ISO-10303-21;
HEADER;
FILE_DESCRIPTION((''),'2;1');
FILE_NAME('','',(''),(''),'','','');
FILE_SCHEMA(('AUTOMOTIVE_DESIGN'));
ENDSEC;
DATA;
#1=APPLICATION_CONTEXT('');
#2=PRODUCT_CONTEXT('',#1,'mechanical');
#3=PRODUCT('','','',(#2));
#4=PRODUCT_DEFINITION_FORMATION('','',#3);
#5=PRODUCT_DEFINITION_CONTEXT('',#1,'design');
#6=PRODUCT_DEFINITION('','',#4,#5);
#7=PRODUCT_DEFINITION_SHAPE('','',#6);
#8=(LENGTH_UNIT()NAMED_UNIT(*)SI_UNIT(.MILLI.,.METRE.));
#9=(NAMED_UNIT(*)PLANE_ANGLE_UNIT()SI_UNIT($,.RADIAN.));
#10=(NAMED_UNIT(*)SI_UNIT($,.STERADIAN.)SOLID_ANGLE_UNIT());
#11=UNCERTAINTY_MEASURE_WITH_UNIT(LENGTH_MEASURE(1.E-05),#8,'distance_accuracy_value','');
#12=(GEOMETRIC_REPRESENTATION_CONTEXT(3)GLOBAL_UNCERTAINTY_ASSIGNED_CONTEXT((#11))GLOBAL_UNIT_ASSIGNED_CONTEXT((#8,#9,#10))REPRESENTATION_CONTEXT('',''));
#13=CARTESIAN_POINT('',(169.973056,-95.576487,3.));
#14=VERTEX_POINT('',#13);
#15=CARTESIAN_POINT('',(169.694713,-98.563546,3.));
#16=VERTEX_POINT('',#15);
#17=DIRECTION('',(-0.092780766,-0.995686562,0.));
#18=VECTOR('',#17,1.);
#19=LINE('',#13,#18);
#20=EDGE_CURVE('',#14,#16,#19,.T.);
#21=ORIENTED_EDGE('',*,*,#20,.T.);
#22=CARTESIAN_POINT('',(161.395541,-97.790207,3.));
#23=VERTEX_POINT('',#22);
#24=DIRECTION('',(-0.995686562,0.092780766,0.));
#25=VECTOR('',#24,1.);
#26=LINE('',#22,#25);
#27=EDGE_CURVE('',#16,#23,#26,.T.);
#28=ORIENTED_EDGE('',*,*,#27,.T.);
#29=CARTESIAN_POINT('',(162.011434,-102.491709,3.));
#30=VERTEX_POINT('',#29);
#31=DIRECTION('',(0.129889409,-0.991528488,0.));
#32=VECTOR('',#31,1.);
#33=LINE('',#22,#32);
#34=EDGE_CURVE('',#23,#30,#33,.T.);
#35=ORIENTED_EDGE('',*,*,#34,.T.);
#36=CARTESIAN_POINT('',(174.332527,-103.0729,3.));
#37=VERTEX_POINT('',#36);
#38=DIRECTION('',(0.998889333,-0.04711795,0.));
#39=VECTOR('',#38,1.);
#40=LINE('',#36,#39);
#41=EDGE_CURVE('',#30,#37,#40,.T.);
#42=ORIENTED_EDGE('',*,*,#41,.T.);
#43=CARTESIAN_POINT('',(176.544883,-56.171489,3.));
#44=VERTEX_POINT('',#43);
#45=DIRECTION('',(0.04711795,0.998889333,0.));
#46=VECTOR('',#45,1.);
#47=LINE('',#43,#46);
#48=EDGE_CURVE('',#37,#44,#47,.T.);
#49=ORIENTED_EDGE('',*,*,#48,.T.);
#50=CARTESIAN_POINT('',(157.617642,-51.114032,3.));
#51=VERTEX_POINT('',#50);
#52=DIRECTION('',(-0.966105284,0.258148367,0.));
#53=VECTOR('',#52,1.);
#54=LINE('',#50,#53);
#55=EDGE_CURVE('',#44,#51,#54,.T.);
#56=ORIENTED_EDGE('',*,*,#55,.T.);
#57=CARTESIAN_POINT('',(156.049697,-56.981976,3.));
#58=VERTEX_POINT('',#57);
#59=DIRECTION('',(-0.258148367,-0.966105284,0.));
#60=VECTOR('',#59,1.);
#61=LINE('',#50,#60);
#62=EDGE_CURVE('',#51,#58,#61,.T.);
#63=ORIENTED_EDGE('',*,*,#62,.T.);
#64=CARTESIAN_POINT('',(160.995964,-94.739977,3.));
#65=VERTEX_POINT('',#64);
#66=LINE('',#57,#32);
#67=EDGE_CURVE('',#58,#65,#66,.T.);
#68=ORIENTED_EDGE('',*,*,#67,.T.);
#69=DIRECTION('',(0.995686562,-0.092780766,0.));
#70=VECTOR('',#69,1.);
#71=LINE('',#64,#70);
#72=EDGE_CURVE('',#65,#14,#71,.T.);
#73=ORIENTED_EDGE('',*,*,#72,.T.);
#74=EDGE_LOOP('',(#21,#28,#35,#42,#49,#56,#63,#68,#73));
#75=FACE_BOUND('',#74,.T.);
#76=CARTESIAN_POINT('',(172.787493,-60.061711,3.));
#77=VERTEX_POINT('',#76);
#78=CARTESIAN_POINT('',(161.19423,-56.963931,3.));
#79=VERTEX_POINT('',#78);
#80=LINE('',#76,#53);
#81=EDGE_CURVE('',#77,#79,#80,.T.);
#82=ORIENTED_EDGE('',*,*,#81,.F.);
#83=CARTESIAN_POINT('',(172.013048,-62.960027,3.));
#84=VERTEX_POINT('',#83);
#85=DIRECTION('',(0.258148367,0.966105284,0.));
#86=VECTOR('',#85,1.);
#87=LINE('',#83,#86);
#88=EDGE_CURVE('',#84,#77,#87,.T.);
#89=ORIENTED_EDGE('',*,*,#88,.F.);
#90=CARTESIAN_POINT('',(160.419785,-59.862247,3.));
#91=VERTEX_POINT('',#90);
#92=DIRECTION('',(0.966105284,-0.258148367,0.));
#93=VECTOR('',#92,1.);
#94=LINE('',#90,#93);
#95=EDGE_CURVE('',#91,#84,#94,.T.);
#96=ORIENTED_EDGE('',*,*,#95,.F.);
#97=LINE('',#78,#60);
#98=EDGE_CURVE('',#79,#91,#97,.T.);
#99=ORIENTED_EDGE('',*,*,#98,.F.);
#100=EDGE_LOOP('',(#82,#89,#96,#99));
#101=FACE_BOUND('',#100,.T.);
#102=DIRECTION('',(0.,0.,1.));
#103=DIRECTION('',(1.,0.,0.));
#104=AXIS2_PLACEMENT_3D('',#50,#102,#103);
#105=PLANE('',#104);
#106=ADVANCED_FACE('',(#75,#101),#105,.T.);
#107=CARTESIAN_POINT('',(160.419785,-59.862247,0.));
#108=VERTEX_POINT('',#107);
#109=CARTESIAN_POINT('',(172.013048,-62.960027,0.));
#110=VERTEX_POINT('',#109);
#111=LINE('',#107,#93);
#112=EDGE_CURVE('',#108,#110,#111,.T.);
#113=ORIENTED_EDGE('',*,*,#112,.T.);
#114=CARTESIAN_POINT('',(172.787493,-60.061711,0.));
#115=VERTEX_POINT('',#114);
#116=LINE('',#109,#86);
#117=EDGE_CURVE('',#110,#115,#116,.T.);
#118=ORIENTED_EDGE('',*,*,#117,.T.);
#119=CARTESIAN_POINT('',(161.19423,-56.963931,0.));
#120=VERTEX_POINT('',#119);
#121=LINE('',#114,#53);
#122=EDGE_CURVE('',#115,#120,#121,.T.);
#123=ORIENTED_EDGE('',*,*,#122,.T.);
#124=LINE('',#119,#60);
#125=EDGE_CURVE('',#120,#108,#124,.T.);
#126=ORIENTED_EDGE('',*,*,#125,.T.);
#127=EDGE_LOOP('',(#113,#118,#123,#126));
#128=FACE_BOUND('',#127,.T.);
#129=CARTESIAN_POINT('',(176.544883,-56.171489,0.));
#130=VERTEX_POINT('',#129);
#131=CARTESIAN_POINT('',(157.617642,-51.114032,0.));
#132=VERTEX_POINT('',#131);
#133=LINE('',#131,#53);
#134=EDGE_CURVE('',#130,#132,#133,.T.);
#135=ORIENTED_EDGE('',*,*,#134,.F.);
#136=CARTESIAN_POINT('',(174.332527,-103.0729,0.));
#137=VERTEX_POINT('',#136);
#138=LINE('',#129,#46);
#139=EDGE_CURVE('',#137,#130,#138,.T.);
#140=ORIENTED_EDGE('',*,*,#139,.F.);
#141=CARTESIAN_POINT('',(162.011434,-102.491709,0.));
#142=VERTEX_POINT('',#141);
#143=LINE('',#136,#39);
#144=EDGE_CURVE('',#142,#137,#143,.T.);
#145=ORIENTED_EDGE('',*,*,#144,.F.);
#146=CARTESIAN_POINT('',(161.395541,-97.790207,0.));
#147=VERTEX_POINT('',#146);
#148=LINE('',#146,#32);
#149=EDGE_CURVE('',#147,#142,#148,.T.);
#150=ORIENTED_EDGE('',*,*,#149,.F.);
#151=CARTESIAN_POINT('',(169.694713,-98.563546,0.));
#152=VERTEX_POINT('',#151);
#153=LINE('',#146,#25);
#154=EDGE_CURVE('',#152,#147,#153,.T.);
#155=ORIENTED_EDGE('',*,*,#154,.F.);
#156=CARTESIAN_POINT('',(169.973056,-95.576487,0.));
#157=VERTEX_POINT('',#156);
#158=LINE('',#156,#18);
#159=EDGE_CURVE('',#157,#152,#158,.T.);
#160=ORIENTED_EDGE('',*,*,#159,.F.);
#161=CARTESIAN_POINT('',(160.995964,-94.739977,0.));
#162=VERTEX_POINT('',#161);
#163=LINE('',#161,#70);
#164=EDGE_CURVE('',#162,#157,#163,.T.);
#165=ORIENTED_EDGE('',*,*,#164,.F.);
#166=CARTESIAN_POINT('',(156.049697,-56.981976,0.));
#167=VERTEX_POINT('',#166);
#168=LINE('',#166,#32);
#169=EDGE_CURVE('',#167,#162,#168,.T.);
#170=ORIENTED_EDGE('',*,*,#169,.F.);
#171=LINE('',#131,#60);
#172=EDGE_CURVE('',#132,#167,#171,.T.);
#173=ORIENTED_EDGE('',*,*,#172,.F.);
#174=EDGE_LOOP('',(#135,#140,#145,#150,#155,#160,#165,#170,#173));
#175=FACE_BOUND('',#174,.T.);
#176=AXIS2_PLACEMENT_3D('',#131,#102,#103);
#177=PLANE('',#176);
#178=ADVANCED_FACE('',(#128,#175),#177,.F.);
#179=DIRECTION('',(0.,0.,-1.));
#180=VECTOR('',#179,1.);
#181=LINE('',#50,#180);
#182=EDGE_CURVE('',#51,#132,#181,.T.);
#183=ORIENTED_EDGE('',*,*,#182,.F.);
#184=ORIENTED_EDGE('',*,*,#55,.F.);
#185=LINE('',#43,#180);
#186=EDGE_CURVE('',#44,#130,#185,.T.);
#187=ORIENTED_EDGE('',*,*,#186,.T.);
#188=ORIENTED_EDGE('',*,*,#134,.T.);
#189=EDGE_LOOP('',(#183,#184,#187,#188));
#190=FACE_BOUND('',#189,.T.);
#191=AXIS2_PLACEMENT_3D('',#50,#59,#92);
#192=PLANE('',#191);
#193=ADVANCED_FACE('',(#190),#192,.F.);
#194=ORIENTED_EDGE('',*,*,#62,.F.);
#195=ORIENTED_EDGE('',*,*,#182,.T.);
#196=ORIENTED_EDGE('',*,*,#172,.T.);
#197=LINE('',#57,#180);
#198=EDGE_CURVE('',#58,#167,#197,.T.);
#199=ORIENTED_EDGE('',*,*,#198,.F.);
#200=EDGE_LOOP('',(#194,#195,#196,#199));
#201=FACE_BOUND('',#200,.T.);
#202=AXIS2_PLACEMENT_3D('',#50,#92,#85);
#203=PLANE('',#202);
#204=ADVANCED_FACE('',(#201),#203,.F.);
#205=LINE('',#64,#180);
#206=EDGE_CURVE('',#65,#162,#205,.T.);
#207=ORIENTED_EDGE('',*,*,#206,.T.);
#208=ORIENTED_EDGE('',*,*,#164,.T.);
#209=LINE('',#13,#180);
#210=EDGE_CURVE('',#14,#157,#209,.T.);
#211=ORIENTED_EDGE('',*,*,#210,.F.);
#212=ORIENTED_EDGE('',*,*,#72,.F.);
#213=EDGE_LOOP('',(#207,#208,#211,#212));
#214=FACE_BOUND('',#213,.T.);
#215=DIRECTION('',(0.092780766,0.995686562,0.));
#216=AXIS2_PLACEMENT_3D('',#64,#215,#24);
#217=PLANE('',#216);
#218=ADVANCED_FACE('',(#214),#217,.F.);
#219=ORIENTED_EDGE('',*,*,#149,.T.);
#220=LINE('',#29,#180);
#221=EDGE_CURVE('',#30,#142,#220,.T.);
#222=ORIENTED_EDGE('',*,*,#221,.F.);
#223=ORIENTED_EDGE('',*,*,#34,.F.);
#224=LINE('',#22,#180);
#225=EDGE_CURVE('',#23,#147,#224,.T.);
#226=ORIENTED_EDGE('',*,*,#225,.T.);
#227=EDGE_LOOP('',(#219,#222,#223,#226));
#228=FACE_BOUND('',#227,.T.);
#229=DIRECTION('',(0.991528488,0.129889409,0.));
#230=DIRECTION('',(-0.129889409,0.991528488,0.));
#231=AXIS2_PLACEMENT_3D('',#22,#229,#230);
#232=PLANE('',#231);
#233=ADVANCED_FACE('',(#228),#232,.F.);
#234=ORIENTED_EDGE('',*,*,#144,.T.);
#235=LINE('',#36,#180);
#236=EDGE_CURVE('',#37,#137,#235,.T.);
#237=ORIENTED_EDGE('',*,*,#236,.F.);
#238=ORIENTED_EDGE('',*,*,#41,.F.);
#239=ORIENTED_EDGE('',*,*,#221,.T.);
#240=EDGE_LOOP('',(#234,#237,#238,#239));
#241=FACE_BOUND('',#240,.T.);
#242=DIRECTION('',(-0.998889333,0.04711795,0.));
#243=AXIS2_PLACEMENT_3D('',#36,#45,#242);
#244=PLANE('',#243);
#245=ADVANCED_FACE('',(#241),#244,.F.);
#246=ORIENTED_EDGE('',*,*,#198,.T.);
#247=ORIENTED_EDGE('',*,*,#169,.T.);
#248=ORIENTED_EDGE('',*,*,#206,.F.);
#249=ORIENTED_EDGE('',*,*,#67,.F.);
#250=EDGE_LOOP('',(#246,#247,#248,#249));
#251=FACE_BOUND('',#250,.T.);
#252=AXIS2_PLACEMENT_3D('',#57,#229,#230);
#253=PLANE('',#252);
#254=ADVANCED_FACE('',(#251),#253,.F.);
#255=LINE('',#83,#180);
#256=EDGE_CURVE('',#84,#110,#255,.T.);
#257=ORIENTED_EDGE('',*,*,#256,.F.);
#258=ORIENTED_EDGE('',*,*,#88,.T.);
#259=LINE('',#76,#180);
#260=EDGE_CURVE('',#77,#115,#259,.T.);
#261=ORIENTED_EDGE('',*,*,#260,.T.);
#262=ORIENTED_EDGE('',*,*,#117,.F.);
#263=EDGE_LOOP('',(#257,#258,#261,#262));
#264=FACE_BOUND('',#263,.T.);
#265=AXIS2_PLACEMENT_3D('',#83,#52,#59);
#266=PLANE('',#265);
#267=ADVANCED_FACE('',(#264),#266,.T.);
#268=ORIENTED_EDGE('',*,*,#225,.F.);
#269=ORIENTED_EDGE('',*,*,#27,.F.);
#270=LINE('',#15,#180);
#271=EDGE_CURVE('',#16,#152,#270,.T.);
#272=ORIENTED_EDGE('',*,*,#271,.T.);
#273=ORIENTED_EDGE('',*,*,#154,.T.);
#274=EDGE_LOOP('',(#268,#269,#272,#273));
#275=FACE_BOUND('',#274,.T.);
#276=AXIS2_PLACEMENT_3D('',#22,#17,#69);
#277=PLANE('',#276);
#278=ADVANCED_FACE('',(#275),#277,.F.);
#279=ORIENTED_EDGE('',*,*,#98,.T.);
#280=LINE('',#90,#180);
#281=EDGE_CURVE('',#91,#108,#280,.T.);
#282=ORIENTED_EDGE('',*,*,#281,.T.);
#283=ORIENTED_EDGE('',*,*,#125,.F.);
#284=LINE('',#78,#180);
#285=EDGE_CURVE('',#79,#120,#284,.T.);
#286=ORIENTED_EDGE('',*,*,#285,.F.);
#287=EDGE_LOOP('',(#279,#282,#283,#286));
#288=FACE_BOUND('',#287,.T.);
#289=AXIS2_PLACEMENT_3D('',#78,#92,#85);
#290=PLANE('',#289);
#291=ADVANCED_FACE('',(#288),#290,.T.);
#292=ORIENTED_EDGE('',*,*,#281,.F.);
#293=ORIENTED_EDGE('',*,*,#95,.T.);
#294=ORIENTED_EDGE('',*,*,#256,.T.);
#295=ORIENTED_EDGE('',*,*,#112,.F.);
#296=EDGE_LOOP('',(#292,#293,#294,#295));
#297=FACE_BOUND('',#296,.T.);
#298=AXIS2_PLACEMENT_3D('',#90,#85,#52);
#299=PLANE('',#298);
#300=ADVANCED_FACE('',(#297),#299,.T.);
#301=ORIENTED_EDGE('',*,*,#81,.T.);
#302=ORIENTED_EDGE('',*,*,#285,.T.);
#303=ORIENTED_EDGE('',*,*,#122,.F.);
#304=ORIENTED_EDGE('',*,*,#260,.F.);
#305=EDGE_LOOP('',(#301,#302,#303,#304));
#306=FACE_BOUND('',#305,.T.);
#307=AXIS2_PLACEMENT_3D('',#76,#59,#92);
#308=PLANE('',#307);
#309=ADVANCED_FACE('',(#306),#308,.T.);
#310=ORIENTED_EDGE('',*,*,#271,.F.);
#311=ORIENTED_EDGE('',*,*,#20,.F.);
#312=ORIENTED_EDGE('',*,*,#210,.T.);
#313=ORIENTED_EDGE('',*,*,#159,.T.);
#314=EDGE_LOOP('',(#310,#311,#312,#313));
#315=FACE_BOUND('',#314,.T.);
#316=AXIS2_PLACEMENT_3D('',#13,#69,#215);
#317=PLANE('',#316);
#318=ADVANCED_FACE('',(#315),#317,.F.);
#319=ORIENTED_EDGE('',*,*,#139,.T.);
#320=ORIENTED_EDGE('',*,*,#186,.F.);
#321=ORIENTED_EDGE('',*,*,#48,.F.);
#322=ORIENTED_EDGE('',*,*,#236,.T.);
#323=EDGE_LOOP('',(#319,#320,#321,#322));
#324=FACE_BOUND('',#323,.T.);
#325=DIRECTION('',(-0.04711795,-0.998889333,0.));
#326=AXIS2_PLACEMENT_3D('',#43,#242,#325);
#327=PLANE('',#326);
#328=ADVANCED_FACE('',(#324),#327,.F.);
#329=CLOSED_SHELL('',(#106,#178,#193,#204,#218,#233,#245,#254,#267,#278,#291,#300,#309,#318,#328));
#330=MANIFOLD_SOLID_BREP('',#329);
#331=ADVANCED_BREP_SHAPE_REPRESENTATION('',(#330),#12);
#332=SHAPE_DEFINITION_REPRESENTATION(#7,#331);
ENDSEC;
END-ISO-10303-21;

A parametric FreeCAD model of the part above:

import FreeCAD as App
import Part
import Sketcher

V = App.Vector

doc = App.newDocument("Part")
body = doc.addObject("PartDesign::Body", "Body")

sketch1 = body.newObject("Sketcher::SketchObject", "Sketch")
sketch1.AttachmentSupport = (doc.getObject("XY_Plane"), [""])
sketch1.MapMode = "FlatFace"
sketch1.addGeometry([
    Part.LineSegment(V(156, -57, 0), V(161, -94.7, 0)),
    Part.LineSegment(V(161, -94.7, 0), V(170, -95.6, 0)),
    Part.LineSegment(V(170, -95.6, 0), V(169.7, -98.6, 0)),
    Part.LineSegment(V(169.7, -98.6, 0), V(161.4, -97.8, 0)),
    Part.LineSegment(V(161.4, -97.8, 0), V(162, -102.5, 0)),
    Part.LineSegment(V(162, -102.5, 0), V(174.3, -103.1, 0)),
    Part.LineSegment(V(174.3, -103.1, 0), V(176.5, -56.2, 0)),
    Part.LineSegment(V(176.5, -56.2, 0), V(157.6, -51.1, 0)),
    Part.LineSegment(V(157.6, -51.1, 0), V(156, -57, 0)),
    Part.LineSegment(V(172, -63, 0), V(160.4, -59.9, 0)),
    Part.LineSegment(V(160.4, -59.9, 0), V(161.2, -57, 0)),
    Part.LineSegment(V(161.2, -57, 0), V(172.8, -60.1, 0)),
    Part.LineSegment(V(172.8, -60.1, 0), V(172, -63, 0)),
], False)
sketch1.addConstraint([
    Sketcher.Constraint("Coincident", 0, 2, 1, 1),
    Sketcher.Constraint("Coincident", 1, 2, 2, 1),
    Sketcher.Constraint("Coincident", 2, 2, 3, 1),
    Sketcher.Constraint("Coincident", 3, 2, 4, 1),
    Sketcher.Constraint("Coincident", 4, 2, 5, 1),
    Sketcher.Constraint("Coincident", 5, 2, 6, 1),
    Sketcher.Constraint("Coincident", 6, 2, 7, 1),
    Sketcher.Constraint("Coincident", 7, 2, 8, 1),
    Sketcher.Constraint("Coincident", 8, 2, 0, 1),
    Sketcher.Constraint("Coincident", 9, 2, 10, 1),
    Sketcher.Constraint("Coincident", 10, 2, 11, 1),
    Sketcher.Constraint("Coincident", 11, 2, 12, 1),
    Sketcher.Constraint("Coincident", 12, 2, 9, 1),
    Sketcher.Constraint("Perpendicular", 1, 2),
    Sketcher.Constraint("Perpendicular", 2, 3),
    Sketcher.Constraint("Parallel", 0, 4),
    Sketcher.Constraint("Perpendicular", 5, 6),
    Sketcher.Constraint("Perpendicular", 7, 8),
    Sketcher.Constraint("Perpendicular", 8, 9),
    Sketcher.Constraint("Perpendicular", 9, 10),
    Sketcher.Constraint("Perpendicular", 10, 11),
    Sketcher.Constraint("Perpendicular", 11, 12),
    Sketcher.Constraint("Equal", 2, 10),
    Sketcher.Constraint("Distance", 2, 3.0),
    Sketcher.Constraint("Distance", 9, 12.0),
    Sketcher.Constraint("DistanceY", 0, 2, 8, 2, 37.758001),
    Sketcher.Constraint("Distance", 0, 38.080601),
    Sketcher.Constraint("DistanceY", 5, 2, -1, 1, 103.0729),
    Sketcher.Constraint("DistanceX", 7, 2, 3, 2, 3.777899),
    Sketcher.Constraint("DistanceY", 10, 2, 7, 2, 5.849899),
    Sketcher.Constraint("Distance", 1, 9.015982),
    Sketcher.Constraint("Distance", 4, 4.741671),
    Sketcher.Constraint("Distance", 6, 46.95356),
    Sketcher.Constraint("Distance", 7, 19.591281),
    Sketcher.Constraint("DistanceX", -1, 1, 3, 2, 161.395541),
    Sketcher.Constraint("DistanceY", 4, 2, -1, 1, 102.491709),
    Sketcher.Constraint("DistanceY", 7, 2, -1, 1, 51.114032),
    Sketcher.Constraint("DistanceX", -1, 1, 10, 2, 161.19423),
    Sketcher.Constraint("DistanceX", 0, 2, 1, 2, 8.977092),
])
pad1 = body.newObject("PartDesign::Pad", "Pad")
pad1.Profile = sketch1
pad1.Length = 3

doc.recompute()
